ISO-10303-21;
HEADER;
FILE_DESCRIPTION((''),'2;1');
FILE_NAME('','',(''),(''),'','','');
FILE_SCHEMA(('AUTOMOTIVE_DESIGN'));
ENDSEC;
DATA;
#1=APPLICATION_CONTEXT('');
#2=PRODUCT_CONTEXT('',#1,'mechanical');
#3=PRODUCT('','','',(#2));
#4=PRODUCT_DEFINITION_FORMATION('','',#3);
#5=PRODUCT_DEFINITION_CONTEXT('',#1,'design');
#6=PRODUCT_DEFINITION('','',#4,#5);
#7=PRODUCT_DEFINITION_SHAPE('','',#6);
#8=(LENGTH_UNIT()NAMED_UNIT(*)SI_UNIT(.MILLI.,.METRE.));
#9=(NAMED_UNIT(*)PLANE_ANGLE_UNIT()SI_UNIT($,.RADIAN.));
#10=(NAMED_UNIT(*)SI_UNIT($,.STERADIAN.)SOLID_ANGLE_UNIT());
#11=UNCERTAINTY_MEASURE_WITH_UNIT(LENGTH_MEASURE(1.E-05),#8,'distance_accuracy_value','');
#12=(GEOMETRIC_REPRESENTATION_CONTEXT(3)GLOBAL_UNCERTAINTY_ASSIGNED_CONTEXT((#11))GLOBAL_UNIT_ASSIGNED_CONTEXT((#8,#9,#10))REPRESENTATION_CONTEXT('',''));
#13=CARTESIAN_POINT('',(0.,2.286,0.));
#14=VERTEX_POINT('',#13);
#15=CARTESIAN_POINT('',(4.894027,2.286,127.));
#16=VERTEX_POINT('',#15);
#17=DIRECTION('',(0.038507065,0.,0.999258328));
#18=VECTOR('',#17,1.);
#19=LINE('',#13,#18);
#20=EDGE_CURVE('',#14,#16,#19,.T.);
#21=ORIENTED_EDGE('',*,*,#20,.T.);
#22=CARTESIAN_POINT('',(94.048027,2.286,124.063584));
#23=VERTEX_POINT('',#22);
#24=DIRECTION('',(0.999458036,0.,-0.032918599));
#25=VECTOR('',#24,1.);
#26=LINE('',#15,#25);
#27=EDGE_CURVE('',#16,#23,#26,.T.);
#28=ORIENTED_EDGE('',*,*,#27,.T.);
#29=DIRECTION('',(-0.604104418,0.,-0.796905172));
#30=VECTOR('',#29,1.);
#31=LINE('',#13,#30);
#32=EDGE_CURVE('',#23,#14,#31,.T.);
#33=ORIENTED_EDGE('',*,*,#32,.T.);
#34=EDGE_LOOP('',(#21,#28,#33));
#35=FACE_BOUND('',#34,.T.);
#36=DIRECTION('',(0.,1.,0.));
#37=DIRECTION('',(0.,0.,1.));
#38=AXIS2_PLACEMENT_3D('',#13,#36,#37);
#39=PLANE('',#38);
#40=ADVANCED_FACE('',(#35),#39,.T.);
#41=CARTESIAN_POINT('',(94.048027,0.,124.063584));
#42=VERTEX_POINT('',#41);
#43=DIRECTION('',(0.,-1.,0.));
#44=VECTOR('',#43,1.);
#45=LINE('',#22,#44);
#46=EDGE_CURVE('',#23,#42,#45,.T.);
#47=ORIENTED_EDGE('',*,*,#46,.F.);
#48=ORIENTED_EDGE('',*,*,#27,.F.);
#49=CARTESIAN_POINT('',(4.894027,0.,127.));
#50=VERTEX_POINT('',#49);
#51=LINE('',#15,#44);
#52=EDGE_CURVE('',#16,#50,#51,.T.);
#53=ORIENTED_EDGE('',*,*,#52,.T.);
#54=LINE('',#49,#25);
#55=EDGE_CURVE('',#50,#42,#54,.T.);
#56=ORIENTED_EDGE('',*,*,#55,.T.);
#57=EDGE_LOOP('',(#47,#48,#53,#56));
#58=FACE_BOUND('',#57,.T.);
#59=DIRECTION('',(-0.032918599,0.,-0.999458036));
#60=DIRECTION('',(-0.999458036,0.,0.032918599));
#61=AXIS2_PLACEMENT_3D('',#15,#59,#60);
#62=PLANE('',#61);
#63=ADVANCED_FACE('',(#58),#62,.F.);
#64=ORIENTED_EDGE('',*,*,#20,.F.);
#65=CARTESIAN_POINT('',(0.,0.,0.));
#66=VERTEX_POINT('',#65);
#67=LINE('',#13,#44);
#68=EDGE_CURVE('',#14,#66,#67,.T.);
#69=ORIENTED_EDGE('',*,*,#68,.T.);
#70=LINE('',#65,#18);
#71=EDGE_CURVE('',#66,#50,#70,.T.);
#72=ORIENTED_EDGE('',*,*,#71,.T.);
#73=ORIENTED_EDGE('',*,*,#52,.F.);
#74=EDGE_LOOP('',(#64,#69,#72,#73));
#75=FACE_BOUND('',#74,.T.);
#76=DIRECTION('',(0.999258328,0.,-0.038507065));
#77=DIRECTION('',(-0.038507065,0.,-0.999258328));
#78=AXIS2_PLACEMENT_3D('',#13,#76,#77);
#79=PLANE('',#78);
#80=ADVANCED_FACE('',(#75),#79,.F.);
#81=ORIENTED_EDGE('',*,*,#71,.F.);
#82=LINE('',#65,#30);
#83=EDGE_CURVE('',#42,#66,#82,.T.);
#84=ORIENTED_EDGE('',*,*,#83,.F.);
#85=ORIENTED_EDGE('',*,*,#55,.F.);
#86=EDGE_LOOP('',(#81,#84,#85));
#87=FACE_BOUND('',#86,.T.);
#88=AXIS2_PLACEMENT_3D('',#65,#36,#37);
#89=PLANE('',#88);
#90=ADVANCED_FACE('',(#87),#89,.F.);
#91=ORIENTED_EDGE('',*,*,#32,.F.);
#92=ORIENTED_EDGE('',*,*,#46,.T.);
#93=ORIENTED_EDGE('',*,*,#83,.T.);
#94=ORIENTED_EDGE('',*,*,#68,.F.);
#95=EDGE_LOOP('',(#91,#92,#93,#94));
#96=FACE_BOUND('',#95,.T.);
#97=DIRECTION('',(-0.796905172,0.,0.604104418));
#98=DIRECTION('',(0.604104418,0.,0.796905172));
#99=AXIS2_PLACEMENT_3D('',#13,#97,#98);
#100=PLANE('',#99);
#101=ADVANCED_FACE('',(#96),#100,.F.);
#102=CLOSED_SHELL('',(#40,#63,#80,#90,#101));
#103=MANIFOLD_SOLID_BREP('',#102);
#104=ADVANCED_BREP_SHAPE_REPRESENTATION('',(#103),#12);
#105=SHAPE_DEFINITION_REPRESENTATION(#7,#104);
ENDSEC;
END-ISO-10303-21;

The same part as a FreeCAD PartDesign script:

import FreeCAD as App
import Part
import Sketcher
Q = App.Units.Quantity


def add_polygon(sketch, points):
    """Adds a closed chain of lines whose ends are joined by coincident constraints."""
    first, n = sketch.GeometryCount, len(points)
    for a, b in zip(points, points[1:] + points[:1]):
        sketch.addGeometry(Part.LineSegment(App.Vector(*a, 0), App.Vector(*b, 0)), False)
    for i in range(n):
        sketch.addConstraint(Sketcher.Constraint("Coincident", first + i, 2, first + (i + 1) % n, 1))

doc = App.newDocument("Part")
params = doc.addObject("Spreadsheet::Sheet", "Params")
for row, (alias, value) in enumerate([
    ("pad1_length", "0.09 in"),
], start=1):
    params.set(f"A{row}", alias)
    params.set(f"B{row}", "=" + value)
    params.setAlias(f"B{row}", alias)

body = doc.addObject("PartDesign::Body", "Body")

# Sketch on XZ plane
sketch1 = doc.addObject("Sketcher::SketchObject", "Sketch")
body.addObject(sketch1)
sketch1.AttachmentSupport = (doc.XZ_Plane, [""])
sketch1.MapMode = "FlatFace"
add_polygon(sketch1, [(0, 0), (5, 127), (94, 124)])  # lines 0-2
sketch1.addConstraint([
    Sketcher.Constraint("Coincident", 2, 2, -1, 1),
    Sketcher.Constraint("DistanceY", -1, 1, 0, 2, Q("5 in")),
    Sketcher.Constraint("DistanceX", 0, 2, 1, 2, Q("3.51 in")),
    Sketcher.Constraint("Distance", 2, Q("155.68174 mm")),
    Sketcher.Constraint("Distance", 0, Q("127.094262 mm")),
])
pad1 = doc.addObject("PartDesign::Pad", "Pad")
body.addObject(pad1)
pad1.Profile = sketch1
pad1.setExpression("Length", "Params.pad1_length")
pad1.Reversed = True

doc.recompute()
